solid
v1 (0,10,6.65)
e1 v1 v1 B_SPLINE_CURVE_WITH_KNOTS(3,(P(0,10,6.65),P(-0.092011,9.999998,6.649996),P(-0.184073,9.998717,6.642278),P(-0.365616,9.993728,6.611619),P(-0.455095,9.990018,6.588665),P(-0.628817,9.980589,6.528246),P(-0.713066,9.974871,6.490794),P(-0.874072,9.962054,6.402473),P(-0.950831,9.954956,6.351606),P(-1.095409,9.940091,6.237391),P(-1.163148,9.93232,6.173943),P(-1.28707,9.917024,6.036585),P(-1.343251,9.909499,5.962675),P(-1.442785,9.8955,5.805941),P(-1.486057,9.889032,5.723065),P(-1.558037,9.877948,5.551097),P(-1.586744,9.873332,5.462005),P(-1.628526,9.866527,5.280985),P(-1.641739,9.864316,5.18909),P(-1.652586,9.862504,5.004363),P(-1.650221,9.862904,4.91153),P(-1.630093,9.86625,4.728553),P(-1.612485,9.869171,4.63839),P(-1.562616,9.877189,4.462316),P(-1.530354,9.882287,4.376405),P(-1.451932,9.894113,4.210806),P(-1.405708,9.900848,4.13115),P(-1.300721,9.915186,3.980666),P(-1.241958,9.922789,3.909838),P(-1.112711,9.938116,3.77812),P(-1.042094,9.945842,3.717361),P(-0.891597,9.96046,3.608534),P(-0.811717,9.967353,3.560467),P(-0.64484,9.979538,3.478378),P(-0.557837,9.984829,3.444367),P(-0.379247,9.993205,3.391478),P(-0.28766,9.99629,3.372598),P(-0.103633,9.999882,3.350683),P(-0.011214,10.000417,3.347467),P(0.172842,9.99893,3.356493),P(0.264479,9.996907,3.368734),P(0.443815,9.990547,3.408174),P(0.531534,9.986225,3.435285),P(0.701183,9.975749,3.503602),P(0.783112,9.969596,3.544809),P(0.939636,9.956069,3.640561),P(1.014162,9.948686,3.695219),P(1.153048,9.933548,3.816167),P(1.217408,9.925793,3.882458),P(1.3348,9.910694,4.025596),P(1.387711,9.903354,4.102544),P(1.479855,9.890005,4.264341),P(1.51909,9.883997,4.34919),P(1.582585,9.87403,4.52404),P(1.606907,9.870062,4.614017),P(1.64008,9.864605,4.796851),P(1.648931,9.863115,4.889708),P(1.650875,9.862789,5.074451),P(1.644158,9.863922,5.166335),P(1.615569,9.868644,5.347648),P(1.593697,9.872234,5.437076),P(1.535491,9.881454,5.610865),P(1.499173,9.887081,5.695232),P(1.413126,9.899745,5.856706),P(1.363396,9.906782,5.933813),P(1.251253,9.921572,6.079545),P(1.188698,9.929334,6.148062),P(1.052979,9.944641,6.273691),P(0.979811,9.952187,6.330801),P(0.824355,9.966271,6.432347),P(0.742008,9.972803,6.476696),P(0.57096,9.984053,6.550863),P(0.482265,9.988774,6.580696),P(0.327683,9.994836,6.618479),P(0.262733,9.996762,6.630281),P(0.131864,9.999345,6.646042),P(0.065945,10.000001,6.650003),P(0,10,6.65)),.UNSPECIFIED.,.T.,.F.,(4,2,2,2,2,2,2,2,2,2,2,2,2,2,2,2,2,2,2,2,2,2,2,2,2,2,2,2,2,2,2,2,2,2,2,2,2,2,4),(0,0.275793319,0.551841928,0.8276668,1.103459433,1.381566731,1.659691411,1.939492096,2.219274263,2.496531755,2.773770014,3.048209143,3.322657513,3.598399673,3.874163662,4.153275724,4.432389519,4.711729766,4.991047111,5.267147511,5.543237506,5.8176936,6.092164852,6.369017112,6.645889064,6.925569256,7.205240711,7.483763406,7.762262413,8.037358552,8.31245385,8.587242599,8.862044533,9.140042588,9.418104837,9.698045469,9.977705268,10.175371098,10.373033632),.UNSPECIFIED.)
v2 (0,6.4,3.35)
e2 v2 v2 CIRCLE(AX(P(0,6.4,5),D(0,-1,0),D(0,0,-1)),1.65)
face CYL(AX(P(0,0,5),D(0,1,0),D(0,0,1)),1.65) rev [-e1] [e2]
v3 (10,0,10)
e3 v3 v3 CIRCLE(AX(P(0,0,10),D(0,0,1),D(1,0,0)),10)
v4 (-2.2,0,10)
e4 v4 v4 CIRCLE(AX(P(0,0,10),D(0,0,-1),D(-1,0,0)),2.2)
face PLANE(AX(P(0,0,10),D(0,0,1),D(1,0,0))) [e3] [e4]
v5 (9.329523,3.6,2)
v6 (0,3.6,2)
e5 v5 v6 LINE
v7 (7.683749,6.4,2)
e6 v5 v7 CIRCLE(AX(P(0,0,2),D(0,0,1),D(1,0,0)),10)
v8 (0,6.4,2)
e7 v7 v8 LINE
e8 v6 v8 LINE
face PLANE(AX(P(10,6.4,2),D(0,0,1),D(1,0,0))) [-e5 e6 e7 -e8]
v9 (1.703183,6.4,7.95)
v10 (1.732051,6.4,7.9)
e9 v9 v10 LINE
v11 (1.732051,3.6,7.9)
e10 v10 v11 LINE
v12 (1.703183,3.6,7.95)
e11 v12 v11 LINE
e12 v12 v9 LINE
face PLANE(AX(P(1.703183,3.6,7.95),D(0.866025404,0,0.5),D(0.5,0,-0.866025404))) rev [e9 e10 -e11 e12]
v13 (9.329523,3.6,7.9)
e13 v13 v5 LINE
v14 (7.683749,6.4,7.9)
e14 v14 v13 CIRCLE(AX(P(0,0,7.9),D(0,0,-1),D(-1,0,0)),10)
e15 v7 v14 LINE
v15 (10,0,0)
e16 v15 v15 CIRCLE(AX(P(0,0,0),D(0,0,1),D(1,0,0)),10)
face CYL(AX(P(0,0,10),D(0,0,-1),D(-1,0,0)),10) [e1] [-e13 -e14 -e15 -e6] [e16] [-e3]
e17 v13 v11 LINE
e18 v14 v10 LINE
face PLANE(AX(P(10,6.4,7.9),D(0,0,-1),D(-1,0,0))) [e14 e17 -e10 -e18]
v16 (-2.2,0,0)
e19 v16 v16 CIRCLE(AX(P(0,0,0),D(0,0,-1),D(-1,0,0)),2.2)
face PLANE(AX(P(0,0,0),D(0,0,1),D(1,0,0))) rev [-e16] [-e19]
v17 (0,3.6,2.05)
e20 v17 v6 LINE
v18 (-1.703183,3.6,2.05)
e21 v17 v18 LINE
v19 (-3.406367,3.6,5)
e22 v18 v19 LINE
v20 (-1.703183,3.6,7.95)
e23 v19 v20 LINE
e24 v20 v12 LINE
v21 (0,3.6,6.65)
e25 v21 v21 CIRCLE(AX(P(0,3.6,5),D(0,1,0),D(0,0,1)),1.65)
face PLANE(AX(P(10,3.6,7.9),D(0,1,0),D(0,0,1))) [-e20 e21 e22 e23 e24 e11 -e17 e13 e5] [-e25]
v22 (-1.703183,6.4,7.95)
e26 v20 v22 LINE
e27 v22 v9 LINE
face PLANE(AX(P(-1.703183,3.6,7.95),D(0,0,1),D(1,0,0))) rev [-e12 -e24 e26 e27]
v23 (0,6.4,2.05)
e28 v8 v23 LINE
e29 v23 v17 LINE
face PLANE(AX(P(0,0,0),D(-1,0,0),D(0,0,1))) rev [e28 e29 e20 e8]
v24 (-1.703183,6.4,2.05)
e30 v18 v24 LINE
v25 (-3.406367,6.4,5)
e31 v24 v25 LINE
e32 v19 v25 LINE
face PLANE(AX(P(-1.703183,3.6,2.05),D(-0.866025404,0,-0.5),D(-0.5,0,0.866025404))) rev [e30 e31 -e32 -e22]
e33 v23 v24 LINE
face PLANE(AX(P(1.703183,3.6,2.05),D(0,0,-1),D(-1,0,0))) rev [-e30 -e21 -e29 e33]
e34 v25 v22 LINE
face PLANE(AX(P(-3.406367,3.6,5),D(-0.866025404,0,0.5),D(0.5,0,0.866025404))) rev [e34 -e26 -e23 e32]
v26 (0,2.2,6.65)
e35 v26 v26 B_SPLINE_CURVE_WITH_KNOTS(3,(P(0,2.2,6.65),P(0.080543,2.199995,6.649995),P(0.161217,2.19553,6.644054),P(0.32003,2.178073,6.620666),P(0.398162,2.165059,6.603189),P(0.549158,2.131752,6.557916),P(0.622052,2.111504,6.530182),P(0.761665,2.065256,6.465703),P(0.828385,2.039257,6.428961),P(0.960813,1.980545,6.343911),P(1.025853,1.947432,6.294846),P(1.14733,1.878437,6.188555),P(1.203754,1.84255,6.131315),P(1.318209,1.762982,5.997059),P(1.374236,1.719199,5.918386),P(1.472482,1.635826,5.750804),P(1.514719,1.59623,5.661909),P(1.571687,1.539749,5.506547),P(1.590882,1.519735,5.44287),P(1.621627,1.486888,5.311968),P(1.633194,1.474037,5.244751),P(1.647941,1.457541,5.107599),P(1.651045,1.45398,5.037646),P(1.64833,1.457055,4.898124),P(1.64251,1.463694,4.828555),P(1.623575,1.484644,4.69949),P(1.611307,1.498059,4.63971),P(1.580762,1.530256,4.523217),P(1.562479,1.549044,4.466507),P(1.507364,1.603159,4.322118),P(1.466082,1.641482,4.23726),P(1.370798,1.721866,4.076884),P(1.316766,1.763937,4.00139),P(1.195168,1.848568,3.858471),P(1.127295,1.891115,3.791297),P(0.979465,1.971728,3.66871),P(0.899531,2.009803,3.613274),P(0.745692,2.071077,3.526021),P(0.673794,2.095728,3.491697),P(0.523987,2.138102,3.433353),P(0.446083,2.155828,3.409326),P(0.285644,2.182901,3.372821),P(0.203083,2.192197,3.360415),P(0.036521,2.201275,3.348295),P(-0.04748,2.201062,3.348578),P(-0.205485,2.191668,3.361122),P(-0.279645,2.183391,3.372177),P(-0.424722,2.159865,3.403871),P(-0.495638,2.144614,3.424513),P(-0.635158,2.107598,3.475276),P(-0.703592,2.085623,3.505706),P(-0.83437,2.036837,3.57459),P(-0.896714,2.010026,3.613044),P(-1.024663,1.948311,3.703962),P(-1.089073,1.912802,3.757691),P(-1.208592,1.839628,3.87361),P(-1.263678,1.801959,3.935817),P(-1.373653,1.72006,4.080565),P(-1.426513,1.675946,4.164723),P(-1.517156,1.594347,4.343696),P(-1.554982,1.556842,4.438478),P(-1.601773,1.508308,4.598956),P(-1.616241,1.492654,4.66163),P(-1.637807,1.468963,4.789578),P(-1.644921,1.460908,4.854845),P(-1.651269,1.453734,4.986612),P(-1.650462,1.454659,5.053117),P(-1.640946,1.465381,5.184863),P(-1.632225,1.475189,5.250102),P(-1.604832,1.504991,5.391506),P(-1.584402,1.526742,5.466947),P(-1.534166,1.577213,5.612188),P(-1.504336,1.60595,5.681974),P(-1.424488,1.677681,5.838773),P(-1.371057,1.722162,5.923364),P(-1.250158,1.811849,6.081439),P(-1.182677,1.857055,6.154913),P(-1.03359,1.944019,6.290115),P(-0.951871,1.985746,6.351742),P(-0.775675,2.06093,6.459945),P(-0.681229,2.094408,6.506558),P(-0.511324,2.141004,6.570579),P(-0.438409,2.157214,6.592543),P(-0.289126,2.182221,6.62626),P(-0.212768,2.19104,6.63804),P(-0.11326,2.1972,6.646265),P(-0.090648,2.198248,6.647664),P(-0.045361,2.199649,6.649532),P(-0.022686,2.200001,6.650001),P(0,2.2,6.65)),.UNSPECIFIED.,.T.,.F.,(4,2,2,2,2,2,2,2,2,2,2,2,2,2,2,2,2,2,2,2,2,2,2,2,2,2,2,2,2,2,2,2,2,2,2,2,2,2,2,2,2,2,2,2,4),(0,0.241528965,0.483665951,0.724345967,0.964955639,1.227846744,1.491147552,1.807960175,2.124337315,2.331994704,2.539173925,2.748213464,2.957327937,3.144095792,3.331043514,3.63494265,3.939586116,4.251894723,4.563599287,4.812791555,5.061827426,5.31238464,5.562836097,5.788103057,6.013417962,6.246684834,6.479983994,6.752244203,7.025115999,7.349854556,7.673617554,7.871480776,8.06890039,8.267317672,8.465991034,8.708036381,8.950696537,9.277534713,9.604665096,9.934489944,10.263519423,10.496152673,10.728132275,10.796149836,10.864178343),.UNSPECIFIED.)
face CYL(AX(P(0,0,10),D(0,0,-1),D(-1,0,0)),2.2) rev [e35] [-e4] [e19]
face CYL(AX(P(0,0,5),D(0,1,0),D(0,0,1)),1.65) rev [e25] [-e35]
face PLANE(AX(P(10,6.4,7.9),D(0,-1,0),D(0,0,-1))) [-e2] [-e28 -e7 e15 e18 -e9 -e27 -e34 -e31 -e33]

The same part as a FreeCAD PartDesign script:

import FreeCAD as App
import Part
import Sketcher
Q = App.Units.Quantity

doc = App.newDocument("Part")
params = doc.addObject("Spreadsheet::Sheet", "Params")
for row, (alias, value) in enumerate([
    ("sketch1_diameter", "20 mm"),
    ("pad1_length", "10 mm"),
    ("sketch2_diameter", "4.4 mm"),
    ("pocket1_length", "10 mm"),
    ("sketch3_width", "2.8 mm"),
    ("sketch3_height", "5.9 mm"),
    ("pocket2_length", "10 mm"),
    ("sketch4_diameter", "3.3 mm"),
    ("pocket3_length", "10 mm"),
    ("pocket4_length", "2.8 mm"),
], start=1):
    params.set(f"A{row}", alias)
    params.set(f"B{row}", "=" + value)
    params.setAlias(f"B{row}", alias)

body = doc.addObject("PartDesign::Body", "Body")

# Sketch on XY plane
sketch1 = body.newObject("Sketcher::SketchObject", "Sketch")
sketch1.AttachmentSupport = (doc.getObject("XY_Plane"), [""])
sketch1.MapMode = "FlatFace"
sketch1.addGeometry(Part.Circle(App.Vector(0, 0, 0), App.Vector(0, 0, 1), 10), False)
sketch1.addConstraint([
    Sketcher.Constraint("Coincident", 0, 3, -1, 1),
    Sketcher.Constraint("Diameter", 0, 20.0),
])
sketch1.setExpression("Constraints[1]", "Params.sketch1_diameter")
pad1 = body.newObject("PartDesign::Pad", "Pad")
pad1.Profile = sketch1
pad1.setExpression("Length", "Params.pad1_length")

# Sketch on XY plane
sketch2 = body.newObject("Sketcher::SketchObject", "Sketch001")
sketch2.AttachmentSupport = (doc.getObject("XY_Plane"), [""])
sketch2.MapMode = "FlatFace"
sketch2.addGeometry(Part.Circle(App.Vector(0, 0, 0), App.Vector(0, 0, 1), 2.2), False)
sketch2.addConstraint([
    Sketcher.Constraint("Coincident", 0, 3, -1, 1),
    Sketcher.Constraint("Diameter", 0, 4.4),
])
sketch2.setExpression("Constraints[1]", "Params.sketch2_diameter")
pocket1 = body.newObject("PartDesign::Pocket", "Pocket")
pocket1.Profile = sketch2
pocket1.setExpression("Length", "Params.pocket1_length")
pocket1.Reversed = True

# Sketch on YZ plane
sketch3 = body.newObject("Sketcher::SketchObject", "Sketch002")
sketch3.AttachmentSupport = (doc.getObject("YZ_Plane"), [""])
sketch3.MapMode = "FlatFace"
sketch3.AttachmentOffset = App.Placement(App.Vector(0, 0, 10), App.Rotation())
sketch3.addGeometry([
    Part.LineSegment(App.Vector(6.4, 2, 0), App.Vector(6.4, 7.9, 0)),
    Part.LineSegment(App.Vector(6.4, 7.9, 0), App.Vector(3.6, 7.9, 0)),
    Part.LineSegment(App.Vector(3.6, 7.9, 0), App.Vector(3.6, 2, 0)),
    Part.LineSegment(App.Vector(3.6, 2, 0), App.Vector(6.4, 2, 0)),
], False)
sketch3.addConstraint([
    Sketcher.Constraint("Coincident", 0, 2, 1, 1),
    Sketcher.Constraint("Coincident", 1, 2, 2, 1),
    Sketcher.Constraint("Coincident", 2, 2, 3, 1),
    Sketcher.Constraint("Coincident", 3, 2, 0, 1),
    Sketcher.Constraint("Vertical", 0),
    Sketcher.Constraint("Horizontal", 1),
    Sketcher.Constraint("Vertical", 2),
    Sketcher.Constraint("Horizontal", 3),
    Sketcher.Constraint("DistanceX", 1, 2, 1, 1, 2.8),
    Sketcher.Constraint("DistanceY", 0, 1, 0, 2, 5.9),
    Sketcher.Constraint("DistanceY", -1, 1, 2, 2, 2.0),
    Sketcher.Constraint("DistanceX", -1, 1, 0, 2, 6.4),
])
sketch3.setExpression("Constraints[8]", "Params.sketch3_width")
sketch3.setExpression("Constraints[9]", "Params.sketch3_height")
pocket2 = body.newObject("PartDesign::Pocket", "Pocket001")
pocket2.Profile = sketch3
pocket2.setExpression("Length", "Params.pocket2_length")

# Sketch on XZ plane
sketch4 = body.newObject("Sketcher::SketchObject", "Sketch003")
sketch4.AttachmentSupport = (doc.getObject("XZ_Plane"), [""])
sketch4.MapMode = "FlatFace"
sketch4.AttachmentOffset = App.Placement(App.Vector(0, 0, -10), App.Rotation())
sketch4.addGeometry(Part.Circle(App.Vector(0, 5, 0), App.Vector(0, 0, 1), 1.6), False)
sketch4.addConstraint([
    Sketcher.Constraint("PointOnObject", 0, 3, -2),
    Sketcher.Constraint("Diameter", 0, 3.3),
    Sketcher.Constraint("DistanceY", -1, 1, 0, 3, 5.0),
])
sketch4.setExpression("Constraints[1]", "Params.sketch4_diameter")
pocket3 = body.newObject("PartDesign::Pocket", "Pocket002")
pocket3.Profile = sketch4
pocket3.setExpression("Length", "Params.pocket3_length")
pocket3.Reversed = True

# Sketch on XZ plane
sketch5 = body.newObject("Sketcher::SketchObject", "Sketch004")
sketch5.AttachmentSupport = (doc.getObject("XZ_Plane"), [""])
sketch5.MapMode = "FlatFace"
sketch5.AttachmentOffset = App.Placement(App.Vector(0, 0, -6.4), App.Rotation())
sketch5.addGeometry([
    Part.LineSegment(App.Vector(-1.7, 2, 0), App.Vector(-3.4, 5, 0)),  # 0
    Part.LineSegment(App.Vector(-3.4, 5, 0), App.Vector(-1.7, 8, 0)),  # 1
    Part.LineSegment(App.Vector(-1.7, 8, 0), App.Vector(1.7, 8, 0)),  # 2
    Part.LineSegment(App.Vector(1.7, 8, 0), App.Vector(3.4, 5, 0)),  # 3
    Part.LineSegment(App.Vector(3.4, 5, 0), App.Vector(1.7, 2, 0)),  # 4
    Part.LineSegment(App.Vector(1.7, 2, 0), App.Vector(-1.7, 2, 0)),  # 5
], False)
sketch5.addConstraint([
    Sketcher.Constraint("Coincident", 0, 2, 1, 1),
    Sketcher.Constraint("Coincident", 1, 2, 2, 1),
    Sketcher.Constraint("Coincident", 2, 2, 3, 1),
    Sketcher.Constraint("Coincident", 3, 2, 4, 1),
    Sketcher.Constraint("Coincident", 4, 2, 5, 1),
    Sketcher.Constraint("Coincident", 5, 2, 0, 1),
    Sketcher.Constraint("Horizontal", 2),
    Sketcher.Constraint("Horizontal", 5),
    Sketcher.Constraint("Symmetric", 0, 2, 3, 2, -2),
    Sketcher.Constraint("Parallel", 0, 3),
    Sketcher.Constraint("Parallel", 1, 4),
    Sketcher.Constraint("Vertical", 2, 2, 4, 2),
    Sketcher.Constraint("Vertical", 1, 2, 5, 2),
    Sketcher.Constraint("Angle", 0, Q("120 deg")),
    Sketcher.Constraint("DistanceY", -1, 1, 0, 2, 5.0),
    Sketcher.Constraint("DistanceY", 4, 2, 2, 2, 5.9),
    Sketcher.Constraint("DistanceX", 2, 1, 2, 2, 3.406367),
])
pocket4 = body.newObject("PartDesign::Pocket", "Pocket003")
pocket4.Profile = sketch5
pocket4.setExpression("Length", "Params.pocket4_length")
pocket4.Reversed = True

doc.recompute()
